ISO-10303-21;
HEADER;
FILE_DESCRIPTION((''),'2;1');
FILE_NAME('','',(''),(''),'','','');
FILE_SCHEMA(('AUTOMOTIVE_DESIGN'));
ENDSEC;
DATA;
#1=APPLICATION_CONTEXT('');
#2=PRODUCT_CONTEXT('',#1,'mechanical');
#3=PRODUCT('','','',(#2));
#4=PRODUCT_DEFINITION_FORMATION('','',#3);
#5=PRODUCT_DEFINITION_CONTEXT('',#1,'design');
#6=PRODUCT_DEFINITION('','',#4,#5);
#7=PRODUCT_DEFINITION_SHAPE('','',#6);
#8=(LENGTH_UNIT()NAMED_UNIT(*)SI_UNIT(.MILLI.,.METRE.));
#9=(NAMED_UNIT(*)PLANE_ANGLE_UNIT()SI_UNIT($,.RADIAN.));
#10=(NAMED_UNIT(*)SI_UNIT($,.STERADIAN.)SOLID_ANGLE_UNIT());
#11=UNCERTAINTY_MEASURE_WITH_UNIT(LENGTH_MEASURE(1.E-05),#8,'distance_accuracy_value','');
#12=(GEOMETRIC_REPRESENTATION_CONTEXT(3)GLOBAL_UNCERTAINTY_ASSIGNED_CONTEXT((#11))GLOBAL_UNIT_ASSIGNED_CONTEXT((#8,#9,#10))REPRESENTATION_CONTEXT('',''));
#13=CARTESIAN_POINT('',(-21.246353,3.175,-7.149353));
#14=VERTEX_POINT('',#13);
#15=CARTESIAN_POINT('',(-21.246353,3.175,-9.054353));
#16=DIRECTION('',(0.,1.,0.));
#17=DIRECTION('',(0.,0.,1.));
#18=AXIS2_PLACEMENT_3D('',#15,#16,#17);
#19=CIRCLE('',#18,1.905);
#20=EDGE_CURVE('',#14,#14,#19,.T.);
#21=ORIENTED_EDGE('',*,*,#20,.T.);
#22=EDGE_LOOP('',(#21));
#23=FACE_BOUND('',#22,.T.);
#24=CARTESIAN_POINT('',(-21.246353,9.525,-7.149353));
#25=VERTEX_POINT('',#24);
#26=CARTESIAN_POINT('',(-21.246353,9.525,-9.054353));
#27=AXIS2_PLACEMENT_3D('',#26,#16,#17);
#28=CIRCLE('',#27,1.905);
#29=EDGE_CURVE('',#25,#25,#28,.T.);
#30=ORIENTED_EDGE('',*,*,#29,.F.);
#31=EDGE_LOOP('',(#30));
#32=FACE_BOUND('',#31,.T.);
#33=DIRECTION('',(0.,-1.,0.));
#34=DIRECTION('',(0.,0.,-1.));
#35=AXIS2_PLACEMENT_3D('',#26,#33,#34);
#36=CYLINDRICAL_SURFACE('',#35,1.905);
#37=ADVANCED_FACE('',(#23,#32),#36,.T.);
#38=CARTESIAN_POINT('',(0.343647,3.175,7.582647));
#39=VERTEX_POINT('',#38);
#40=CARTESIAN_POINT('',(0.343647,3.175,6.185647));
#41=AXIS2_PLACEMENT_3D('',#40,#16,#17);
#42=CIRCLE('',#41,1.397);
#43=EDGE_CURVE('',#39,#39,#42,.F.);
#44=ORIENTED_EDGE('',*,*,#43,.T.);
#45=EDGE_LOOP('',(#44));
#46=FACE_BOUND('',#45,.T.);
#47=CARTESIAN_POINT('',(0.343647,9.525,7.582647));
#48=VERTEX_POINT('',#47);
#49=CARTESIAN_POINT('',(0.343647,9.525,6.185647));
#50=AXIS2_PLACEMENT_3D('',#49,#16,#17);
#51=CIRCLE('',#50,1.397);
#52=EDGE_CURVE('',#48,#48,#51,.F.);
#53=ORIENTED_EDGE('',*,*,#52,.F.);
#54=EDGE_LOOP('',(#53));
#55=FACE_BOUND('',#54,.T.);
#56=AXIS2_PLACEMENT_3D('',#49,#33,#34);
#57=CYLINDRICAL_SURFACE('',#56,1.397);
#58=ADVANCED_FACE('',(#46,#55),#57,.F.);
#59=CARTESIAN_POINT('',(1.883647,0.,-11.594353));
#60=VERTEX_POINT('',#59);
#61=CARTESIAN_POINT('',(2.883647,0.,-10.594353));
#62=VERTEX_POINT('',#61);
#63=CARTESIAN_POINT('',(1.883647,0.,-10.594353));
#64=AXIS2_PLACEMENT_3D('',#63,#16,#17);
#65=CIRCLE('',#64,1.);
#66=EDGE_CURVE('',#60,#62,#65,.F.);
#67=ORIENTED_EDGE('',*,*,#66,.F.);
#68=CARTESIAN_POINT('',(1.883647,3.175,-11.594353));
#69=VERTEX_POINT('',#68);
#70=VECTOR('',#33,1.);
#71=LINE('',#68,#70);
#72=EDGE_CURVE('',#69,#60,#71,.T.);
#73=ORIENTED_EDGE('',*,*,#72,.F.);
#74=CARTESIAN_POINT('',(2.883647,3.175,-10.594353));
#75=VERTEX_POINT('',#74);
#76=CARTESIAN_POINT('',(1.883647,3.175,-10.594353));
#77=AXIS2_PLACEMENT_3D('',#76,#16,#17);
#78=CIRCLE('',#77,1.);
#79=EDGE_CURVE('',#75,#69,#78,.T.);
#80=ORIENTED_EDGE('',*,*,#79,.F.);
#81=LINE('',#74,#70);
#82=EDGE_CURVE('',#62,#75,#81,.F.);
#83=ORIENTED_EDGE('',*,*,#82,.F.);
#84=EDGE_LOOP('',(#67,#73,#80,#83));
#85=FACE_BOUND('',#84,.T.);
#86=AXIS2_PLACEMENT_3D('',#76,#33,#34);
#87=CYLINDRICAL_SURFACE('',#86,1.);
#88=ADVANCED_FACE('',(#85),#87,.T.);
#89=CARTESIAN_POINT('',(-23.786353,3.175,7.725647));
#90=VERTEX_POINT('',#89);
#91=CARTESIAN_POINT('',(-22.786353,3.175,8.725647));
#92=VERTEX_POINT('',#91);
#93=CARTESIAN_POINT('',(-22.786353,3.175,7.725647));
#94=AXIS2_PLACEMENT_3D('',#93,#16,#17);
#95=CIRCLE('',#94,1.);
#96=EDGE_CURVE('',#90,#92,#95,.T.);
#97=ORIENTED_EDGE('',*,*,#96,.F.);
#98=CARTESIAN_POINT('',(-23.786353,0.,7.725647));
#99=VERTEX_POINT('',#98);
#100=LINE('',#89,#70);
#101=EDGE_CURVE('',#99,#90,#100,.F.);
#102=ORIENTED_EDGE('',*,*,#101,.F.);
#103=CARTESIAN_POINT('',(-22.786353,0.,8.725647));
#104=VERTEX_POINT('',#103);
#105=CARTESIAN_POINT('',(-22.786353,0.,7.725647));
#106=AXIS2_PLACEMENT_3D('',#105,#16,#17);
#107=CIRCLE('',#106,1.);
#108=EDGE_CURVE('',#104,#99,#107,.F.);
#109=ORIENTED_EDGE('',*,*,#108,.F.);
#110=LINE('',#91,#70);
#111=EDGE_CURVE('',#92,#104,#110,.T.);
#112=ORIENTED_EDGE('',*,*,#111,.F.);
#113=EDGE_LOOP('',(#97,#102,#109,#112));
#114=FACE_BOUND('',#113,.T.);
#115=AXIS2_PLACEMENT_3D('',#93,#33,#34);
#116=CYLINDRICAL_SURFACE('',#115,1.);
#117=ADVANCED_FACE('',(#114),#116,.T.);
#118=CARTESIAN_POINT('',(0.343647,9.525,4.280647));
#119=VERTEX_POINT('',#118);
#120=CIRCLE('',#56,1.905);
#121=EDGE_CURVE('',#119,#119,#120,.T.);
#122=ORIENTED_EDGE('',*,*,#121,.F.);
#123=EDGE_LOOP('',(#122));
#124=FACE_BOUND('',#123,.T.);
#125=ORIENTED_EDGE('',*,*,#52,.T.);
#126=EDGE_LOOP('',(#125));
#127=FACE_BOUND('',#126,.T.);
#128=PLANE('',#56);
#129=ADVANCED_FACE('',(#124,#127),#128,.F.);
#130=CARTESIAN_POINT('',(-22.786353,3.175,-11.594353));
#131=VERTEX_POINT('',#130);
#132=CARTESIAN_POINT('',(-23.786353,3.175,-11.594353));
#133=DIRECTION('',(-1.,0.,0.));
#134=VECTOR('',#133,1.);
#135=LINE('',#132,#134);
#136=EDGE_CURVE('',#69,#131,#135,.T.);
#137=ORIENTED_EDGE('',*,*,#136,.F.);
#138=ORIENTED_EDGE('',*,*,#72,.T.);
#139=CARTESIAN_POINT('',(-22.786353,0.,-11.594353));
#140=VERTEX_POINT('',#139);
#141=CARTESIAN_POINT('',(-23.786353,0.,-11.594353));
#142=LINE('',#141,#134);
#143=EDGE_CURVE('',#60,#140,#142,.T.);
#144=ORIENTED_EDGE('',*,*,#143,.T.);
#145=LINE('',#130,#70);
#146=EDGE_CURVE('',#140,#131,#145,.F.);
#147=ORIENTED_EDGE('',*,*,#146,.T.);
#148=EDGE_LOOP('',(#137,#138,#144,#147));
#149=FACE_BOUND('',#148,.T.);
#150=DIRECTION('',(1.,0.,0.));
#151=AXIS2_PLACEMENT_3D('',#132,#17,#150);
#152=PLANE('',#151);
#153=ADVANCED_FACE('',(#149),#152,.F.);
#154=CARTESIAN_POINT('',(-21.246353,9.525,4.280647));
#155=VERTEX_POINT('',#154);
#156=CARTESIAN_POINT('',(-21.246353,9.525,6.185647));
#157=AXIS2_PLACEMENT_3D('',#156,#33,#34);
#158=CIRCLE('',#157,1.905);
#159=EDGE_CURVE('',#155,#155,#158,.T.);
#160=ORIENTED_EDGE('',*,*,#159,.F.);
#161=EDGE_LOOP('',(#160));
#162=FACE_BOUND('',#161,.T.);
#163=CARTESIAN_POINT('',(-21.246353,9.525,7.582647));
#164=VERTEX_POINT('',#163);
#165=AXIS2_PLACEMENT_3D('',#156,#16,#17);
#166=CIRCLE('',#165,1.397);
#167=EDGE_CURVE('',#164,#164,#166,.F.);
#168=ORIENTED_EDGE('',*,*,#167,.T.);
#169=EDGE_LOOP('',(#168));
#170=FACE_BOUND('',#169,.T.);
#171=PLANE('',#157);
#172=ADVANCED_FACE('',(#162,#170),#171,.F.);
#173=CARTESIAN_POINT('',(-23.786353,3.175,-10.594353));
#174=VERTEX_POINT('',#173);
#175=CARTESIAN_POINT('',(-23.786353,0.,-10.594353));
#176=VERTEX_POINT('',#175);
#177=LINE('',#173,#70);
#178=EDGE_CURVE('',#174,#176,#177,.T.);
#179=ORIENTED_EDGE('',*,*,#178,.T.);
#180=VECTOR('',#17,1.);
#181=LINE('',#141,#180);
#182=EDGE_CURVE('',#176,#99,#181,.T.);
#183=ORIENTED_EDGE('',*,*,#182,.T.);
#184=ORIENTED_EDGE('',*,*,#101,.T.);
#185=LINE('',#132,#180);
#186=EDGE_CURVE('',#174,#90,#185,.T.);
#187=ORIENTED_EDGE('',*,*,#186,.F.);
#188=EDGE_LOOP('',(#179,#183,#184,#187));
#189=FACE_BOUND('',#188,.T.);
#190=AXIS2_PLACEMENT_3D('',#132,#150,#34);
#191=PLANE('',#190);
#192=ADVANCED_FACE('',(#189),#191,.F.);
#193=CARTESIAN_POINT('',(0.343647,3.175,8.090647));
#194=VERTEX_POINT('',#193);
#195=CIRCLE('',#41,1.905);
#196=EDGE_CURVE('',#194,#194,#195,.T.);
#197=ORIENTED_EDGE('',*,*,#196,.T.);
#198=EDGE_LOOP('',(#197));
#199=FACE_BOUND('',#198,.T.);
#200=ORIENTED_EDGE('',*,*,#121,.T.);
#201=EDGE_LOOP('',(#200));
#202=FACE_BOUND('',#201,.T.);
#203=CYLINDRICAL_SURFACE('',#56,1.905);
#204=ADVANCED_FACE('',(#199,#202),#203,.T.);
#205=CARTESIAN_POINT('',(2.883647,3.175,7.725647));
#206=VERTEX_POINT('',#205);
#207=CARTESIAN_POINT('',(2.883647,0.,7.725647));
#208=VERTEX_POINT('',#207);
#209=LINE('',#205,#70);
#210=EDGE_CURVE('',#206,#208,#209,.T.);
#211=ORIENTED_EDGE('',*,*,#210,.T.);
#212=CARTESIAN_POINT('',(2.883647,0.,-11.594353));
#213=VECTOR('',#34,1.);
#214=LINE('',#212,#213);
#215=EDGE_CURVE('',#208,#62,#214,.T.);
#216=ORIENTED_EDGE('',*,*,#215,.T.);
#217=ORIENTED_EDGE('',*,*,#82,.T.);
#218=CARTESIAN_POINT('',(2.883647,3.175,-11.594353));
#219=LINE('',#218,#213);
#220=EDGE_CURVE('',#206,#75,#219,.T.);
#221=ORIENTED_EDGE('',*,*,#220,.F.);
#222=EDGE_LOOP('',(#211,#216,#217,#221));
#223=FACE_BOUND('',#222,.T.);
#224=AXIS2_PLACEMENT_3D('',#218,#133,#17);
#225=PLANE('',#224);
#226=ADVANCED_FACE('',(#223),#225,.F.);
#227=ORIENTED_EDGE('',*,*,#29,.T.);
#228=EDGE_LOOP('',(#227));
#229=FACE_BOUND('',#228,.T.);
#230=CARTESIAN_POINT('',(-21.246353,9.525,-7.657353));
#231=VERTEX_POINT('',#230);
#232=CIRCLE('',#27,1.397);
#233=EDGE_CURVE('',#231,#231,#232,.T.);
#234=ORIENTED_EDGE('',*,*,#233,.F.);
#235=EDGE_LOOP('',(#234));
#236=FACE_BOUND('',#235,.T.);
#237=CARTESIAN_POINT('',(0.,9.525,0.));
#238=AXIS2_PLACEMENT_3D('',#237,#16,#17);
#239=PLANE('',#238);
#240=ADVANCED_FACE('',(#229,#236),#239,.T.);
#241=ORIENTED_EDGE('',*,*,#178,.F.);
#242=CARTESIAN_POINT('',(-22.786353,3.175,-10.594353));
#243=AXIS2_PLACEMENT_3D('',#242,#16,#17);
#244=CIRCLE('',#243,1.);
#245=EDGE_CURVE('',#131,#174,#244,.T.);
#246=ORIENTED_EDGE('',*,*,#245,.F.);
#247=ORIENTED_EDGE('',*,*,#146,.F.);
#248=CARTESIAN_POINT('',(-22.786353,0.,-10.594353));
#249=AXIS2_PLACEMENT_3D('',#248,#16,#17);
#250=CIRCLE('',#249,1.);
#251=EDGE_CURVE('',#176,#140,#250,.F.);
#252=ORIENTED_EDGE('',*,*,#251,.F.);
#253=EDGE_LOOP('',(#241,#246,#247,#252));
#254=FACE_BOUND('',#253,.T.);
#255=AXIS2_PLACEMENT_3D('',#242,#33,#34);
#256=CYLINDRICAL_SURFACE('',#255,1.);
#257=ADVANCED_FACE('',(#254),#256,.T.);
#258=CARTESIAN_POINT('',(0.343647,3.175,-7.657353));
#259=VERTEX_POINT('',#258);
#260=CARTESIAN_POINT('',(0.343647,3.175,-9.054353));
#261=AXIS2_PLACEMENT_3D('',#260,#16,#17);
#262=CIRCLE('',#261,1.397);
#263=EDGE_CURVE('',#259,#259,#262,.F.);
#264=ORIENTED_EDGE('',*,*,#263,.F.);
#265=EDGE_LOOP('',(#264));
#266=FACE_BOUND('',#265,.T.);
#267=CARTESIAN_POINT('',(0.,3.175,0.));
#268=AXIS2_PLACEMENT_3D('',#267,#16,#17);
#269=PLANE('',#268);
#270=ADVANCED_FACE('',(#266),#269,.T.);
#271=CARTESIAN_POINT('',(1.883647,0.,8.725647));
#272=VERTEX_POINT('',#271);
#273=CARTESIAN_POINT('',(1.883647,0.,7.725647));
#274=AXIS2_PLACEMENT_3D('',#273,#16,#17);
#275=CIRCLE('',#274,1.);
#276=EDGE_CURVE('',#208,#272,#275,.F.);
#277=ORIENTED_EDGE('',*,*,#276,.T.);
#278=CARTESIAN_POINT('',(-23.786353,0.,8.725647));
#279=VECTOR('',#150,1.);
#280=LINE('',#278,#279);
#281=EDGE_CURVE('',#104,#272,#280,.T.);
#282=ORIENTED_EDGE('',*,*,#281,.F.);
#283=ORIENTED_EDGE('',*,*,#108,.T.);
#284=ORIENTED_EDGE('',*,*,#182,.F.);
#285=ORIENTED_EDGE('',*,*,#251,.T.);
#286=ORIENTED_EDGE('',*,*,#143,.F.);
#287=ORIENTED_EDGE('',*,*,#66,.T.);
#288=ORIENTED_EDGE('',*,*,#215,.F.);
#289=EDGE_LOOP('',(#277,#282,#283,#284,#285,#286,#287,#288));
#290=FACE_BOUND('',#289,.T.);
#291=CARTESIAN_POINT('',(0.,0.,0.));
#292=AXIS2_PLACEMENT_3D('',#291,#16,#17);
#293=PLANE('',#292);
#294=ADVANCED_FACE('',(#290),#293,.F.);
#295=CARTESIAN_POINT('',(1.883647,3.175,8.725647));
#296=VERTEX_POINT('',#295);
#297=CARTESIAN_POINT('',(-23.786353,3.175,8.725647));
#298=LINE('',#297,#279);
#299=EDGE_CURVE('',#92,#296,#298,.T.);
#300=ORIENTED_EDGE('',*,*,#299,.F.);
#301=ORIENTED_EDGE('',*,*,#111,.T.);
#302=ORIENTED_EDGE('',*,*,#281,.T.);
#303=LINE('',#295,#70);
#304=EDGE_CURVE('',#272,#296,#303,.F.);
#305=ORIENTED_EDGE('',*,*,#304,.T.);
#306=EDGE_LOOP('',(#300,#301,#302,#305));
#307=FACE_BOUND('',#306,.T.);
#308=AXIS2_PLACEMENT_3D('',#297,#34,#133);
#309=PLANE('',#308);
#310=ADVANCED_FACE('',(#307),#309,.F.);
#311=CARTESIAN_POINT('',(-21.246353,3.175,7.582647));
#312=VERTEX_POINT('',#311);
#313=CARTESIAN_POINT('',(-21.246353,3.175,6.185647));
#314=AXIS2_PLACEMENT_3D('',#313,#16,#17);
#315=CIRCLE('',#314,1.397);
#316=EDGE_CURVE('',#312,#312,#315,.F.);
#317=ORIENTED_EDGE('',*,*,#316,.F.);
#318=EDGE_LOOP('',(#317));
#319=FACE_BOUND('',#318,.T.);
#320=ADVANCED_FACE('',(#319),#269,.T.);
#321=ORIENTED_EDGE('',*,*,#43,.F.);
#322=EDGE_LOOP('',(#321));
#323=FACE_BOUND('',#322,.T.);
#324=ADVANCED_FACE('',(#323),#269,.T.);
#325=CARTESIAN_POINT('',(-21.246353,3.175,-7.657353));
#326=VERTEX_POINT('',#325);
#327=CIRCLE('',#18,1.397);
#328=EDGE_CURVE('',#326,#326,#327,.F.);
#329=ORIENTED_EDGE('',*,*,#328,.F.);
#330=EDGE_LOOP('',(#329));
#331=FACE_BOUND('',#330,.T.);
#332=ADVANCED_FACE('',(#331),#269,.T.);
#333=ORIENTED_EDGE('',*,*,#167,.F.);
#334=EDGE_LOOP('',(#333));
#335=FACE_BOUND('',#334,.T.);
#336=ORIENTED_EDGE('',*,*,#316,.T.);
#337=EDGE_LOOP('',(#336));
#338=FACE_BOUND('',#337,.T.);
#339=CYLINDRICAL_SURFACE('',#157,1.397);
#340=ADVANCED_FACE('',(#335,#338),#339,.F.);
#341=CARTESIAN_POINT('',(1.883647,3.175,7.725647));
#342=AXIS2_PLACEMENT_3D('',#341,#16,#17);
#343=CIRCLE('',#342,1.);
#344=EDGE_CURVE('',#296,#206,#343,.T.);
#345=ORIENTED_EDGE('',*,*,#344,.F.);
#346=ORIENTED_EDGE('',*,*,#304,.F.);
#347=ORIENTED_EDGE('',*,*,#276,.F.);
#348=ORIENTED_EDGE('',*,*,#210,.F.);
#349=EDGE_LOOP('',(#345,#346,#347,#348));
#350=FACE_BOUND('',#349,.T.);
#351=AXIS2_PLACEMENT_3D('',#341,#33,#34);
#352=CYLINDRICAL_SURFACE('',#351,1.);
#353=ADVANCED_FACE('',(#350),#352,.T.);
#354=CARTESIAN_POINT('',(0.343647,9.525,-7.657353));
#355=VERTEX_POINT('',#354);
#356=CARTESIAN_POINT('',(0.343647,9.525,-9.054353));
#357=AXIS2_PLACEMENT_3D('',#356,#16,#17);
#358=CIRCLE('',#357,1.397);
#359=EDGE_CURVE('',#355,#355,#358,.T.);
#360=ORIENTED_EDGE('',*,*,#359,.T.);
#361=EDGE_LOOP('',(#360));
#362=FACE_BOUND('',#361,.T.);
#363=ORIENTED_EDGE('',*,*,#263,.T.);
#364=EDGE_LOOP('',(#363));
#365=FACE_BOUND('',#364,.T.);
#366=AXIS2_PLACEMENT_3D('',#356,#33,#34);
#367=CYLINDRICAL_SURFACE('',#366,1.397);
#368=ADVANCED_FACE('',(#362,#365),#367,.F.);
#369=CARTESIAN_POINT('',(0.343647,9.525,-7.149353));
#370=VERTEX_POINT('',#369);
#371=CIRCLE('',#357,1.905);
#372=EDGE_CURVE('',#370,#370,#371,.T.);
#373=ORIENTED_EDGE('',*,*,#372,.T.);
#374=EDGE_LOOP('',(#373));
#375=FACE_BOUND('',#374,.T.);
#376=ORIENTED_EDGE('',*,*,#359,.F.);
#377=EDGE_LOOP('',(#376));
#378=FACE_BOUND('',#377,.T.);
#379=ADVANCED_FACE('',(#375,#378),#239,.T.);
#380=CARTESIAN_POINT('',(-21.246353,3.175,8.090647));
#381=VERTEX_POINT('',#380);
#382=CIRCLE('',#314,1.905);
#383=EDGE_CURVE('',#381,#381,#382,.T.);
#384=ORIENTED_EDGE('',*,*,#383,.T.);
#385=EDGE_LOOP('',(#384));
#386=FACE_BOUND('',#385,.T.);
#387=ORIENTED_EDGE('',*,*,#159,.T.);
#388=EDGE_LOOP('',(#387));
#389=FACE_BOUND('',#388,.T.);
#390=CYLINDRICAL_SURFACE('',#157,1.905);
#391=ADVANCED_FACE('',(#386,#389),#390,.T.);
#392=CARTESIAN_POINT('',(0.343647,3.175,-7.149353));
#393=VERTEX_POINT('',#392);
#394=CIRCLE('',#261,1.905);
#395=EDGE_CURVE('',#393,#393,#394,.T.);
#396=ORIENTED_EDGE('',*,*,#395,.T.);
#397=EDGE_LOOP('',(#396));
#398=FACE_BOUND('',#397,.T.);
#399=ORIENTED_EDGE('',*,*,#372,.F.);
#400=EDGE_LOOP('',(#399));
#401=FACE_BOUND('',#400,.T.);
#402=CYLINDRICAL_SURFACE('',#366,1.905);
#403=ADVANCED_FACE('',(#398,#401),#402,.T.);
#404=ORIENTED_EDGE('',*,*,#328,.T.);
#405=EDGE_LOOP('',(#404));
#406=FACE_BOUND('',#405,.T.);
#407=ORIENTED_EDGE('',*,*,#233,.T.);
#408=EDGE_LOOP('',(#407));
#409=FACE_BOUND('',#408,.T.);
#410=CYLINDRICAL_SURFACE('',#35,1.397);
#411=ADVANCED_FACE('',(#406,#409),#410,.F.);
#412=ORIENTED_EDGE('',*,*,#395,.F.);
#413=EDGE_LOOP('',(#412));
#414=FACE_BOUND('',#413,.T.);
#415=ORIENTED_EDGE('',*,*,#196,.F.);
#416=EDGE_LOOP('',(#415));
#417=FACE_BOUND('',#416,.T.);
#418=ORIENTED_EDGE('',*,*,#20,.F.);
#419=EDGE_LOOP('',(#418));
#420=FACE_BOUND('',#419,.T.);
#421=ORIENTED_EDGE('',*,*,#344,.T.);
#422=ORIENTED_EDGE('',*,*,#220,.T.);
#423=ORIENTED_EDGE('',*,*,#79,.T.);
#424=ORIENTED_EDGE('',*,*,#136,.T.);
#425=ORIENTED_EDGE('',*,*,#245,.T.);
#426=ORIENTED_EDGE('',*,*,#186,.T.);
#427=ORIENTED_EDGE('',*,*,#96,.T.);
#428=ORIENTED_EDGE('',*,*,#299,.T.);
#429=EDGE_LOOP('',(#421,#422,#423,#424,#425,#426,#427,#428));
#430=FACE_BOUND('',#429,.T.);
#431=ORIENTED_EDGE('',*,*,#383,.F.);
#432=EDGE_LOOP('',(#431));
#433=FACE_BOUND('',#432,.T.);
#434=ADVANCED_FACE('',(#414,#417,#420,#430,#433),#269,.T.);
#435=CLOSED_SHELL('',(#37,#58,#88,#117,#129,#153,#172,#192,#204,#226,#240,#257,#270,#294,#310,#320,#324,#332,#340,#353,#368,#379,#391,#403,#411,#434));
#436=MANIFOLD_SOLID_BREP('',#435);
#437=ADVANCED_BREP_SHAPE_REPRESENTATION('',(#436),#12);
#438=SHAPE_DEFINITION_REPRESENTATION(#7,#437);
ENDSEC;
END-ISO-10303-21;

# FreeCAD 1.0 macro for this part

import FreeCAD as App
import Part
import Sketcher
from FreeCAD import Vector
Q = App.Units.Quantity


def edges_at(feature, points):
    """Names of the edges that pass closest to the given points."""
    edges = feature.Shape.Edges
    near = lambda p: min(range(len(edges)), key=lambda i: edges[i].distToShape(Part.Vertex(*p))[0])
    return sorted({f"Edge{near(p) + 1}" for p in points})


def add_polygon(sketch, points):
    """Adds a closed chain of lines whose ends are joined by coincident constraints."""
    first, n = sketch.GeometryCount, len(points)
    for a, b in zip(points, points[1:] + points[:1]):
        sketch.addGeometry(Part.LineSegment(App.Vector(*a, 0), App.Vector(*b, 0)), False)
    for i in range(n):
        sketch.addConstraint(Sketcher.Constraint("Coincident", first + i, 2, first + (i + 1) % n, 1))

doc = App.newDocument("Part")
body = doc.addObject("PartDesign::Body", "Body")

# Sketch on XZ plane
sketch1 = body.newObject("Sketcher::SketchObject", "Sketch")
sketch1.AttachmentSupport = (doc.getObject("XZ_Plane"), [""])
sketch1.MapMode = "FlatFace"
add_polygon(sketch1, [(-24, -12), (-24, 9), (3, 9), (3, -12)])  # lines 0-3
sketch1.addConstraint([
    Sketcher.Constraint("Vertical", 0),
    Sketcher.Constraint("Horizontal", 1),
    Sketcher.Constraint("Vertical", 2),
    Sketcher.Constraint("Horizontal", 3),
    Sketcher.Constraint("DistanceY", 0, 1, 0, 2, Q("0.8 in")),
    Sketcher.Constraint("DistanceX", 1, 1, 1, 2, Q("1.05 in")),
    Sketcher.Constraint("DistanceX", 0, 2, -1, 1, Q("23.786353 mm")),
    Sketcher.Constraint("DistanceY", -1, 1, 0, 2, Q("8.725647 mm")),
])
pad1 = body.newObject("PartDesign::Pad", "Pad")
pad1.Profile = sketch1
pad1.Length = Q("0.125 in")
pad1.Reversed = True

# Sketch on XZ plane
sketch2 = body.newObject("Sketcher::SketchObject", "Sketch001")
sketch2.AttachmentSupport = (doc.getObject("XZ_Plane"), [""])
sketch2.MapMode = "FlatFace"
sketch2.AttachmentOffset = App.Placement(Vector(0, 0, -0.125 * 25.4), App.Rotation())
sketch2.addGeometry([
    Part.Circle(Vector(-21.2, -9.1, 0), Vector(0, 0, 1), 1.9),  # 0
    Part.Circle(Vector(-21.2, -9.1, 0), Vector(0, 0, 1), 1.4),  # 1
    Part.Circle(Vector(0.3, -9.1, 0), Vector(0, 0, 1), 1.9),  # 2
    Part.Circle(Vector(0.3, -9.1, 0), Vector(0, 0, 1), 1.4),  # 3
    Part.Circle(Vector(0.3, 6.2, 0), Vector(0, 0, 1), 1.9),  # 4
    Part.Circle(Vector(0.3, 6.2, 0), Vector(0, 0, 1), 1.4),  # 5
    Part.Circle(Vector(-21.2, 6.2, 0), Vector(0, 0, 1), 1.9),  # 6
    Part.Circle(Vector(-21.2, 6.2, 0), Vector(0, 0, 1), 1.4),  # 7
], False)
sketch2.addConstraint([
    Sketcher.Constraint("Coincident", 1, 3, 0, 3),
    Sketcher.Constraint("Coincident", 3, 3, 2, 3),
    Sketcher.Constraint("Coincident", 5, 3, 4, 3),
    Sketcher.Constraint("Coincident", 7, 3, 6, 3),
    Sketcher.Constraint("Equal", 0, 2),
    Sketcher.Constraint("Equal", 1, 3),
    Sketcher.Constraint("Equal", 2, 4),
    Sketcher.Constraint("Equal", 3, 5),
    Sketcher.Constraint("Equal", 4, 6),
    Sketcher.Constraint("Equal", 5, 7),
    Sketcher.Constraint("Horizontal", 1, 3, 2, 3),
    Sketcher.Constraint("Horizontal", 5, 3, 6, 3),
    Sketcher.Constraint("Vertical", 3, 3, 4, 3),
    Sketcher.Constraint("Vertical", 1, 3, 6, 3),
    Sketcher.Constraint("Diameter", 0, Q("0.15 in")),
    Sketcher.Constraint("Diameter", 1, Q("0.11 in")),
    Sketcher.Constraint("DistanceY", 2, 3, 4, 3, Q("0.6 in")),
    Sketcher.Constraint("DistanceX", 0, 3, 2, 3, Q("0.85 in")),
    Sketcher.Constraint("DistanceX", 0, 3, -1, 1, Q("21.246353 mm")),
    Sketcher.Constraint("DistanceY", 0, 3, -1, 1, Q("9.054353 mm")),
])
pad2 = body.newObject("PartDesign::Pad", "Pad001")
pad2.Profile = sketch2
pad2.Length = Q("0.25 in")
pad2.Reversed = True
doc.recompute()

fillet = body.newObject("PartDesign::Fillet", "Fillet")
fillet.Base = (pad2, edges_at(pad2, [
    (-23.786, 1.587, -11.594),
    (2.884, 1.587, -11.594),
    (2.884, 1.587, 8.726),
    (-23.786, 1.587, 8.726),
]))
fillet.Radius = 1

doc.recompute()
